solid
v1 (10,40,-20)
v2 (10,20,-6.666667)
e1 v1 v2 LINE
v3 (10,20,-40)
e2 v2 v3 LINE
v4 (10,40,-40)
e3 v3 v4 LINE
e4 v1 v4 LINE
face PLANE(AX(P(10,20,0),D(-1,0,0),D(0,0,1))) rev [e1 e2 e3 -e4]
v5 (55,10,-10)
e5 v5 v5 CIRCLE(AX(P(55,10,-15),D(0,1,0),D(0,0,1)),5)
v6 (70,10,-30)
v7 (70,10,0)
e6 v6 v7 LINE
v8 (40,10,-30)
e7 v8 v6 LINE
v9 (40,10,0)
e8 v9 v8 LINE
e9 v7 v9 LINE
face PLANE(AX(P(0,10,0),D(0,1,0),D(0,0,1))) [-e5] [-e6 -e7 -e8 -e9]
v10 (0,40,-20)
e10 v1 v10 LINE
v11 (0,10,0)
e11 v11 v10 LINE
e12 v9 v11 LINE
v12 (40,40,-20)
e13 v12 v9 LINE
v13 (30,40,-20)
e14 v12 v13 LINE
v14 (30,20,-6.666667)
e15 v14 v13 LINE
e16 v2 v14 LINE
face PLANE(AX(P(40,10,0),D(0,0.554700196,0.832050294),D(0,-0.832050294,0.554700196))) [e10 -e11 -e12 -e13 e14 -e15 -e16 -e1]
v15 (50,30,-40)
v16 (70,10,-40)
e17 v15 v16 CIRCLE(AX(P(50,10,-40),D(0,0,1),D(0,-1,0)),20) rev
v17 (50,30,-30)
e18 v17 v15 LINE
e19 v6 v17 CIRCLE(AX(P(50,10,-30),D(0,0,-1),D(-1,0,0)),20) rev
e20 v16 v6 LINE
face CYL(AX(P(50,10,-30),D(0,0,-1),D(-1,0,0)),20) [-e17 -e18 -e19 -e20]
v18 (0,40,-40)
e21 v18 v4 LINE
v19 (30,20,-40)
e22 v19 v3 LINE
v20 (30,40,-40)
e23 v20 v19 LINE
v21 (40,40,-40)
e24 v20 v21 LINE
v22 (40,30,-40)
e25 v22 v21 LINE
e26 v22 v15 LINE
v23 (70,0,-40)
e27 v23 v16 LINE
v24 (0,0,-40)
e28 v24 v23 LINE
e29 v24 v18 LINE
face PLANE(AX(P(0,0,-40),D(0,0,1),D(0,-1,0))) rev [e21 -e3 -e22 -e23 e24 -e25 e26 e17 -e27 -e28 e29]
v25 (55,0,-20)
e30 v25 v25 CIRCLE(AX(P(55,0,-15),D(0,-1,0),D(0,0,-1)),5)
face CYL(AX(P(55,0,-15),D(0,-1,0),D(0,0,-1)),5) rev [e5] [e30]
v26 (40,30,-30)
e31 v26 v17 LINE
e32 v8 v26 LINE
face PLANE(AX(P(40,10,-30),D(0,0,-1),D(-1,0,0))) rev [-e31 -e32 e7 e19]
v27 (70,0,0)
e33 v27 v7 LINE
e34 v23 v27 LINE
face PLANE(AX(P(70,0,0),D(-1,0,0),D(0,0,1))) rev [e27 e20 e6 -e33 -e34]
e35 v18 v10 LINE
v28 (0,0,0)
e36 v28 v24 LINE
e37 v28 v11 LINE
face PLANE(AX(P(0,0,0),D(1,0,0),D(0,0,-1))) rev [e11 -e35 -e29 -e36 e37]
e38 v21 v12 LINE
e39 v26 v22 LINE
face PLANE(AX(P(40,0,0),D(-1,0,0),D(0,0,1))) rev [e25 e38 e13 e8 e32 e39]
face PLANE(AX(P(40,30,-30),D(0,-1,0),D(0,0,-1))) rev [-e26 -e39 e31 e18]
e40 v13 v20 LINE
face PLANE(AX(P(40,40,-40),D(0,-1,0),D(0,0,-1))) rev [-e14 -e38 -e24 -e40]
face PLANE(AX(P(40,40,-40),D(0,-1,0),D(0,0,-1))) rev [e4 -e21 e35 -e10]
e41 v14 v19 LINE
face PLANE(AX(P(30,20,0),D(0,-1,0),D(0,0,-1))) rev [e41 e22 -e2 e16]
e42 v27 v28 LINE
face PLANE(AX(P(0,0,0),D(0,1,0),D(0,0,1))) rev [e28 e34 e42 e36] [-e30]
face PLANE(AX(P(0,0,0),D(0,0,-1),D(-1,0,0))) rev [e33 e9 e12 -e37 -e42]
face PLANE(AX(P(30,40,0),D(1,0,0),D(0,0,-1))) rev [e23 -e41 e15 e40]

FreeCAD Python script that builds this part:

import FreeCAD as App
import Part
import Sketcher
from FreeCAD import Vector


def edges_at(feature, points):
    """Names of the edges that pass closest to the given points."""
    edges = feature.Shape.Edges
    near = lambda p: min(range(len(edges)), key=lambda i: edges[i].distToShape(Part.Vertex(*p))[0])
    return sorted({f"Edge{near(p) + 1}" for p in points})

doc = App.newDocument("Part")
params = doc.addObject("Spreadsheet::Sheet", "Params")
for row, (alias, value) in enumerate([
    ("sketch1_width", "30 mm"),
    ("sketch1_height", "20 mm"),
    ("pad1_length", "40 mm"),
    ("sketch2_width", "40 mm"),
    ("sketch2_height", "30 mm"),
    ("pad2_length", "20 mm"),
    ("sketch3_width", "30 mm"),
    ("sketch3_height", "40 mm"),
    ("sketch3_height2", "20 mm"),
    ("pad3_length", "30 mm"),
    ("sketch4_width", "20 mm"),
    ("sketch4_width2", "10 mm"),
    ("sketch4_height", "30 mm"),
    ("pocket1_length", "30 mm"),
    ("sketch5_width", "70 mm"),
    ("sketch5_height", "40 mm"),
    ("pad4_length", "10 mm"),
    ("sketch6_width", "20 mm"),
    ("sketch7_diameter", "10 mm"),
    ("hole_diameter", "10 mm"),
    ("hole_depth", "40 mm"),
    ("fillet_radius", "20 mm"),
], start=1):
    params.set(f"A{row}", alias)
    params.set(f"B{row}", "=" + value)
    params.setAlias(f"B{row}", alias)

body = doc.addObject("PartDesign::Body", "Body")

# Sketch on YZ plane
sketch1 = body.newObject("Sketcher::SketchObject", "Sketch")
sketch1.AttachmentSupport = (doc.getObject("YZ_Plane"), [""])
sketch1.MapMode = "FlatFace"
sketch1.addGeometry(Part.LineSegment(Vector(10, 0, 0), Vector(40, -20, 0)), False)
sketch1.addGeometry(Part.LineSegment(Vector(40, -20, 0), Vector(10, -20, 0)), False)
sketch1.addGeometry(Part.LineSegment(Vector(10, -20, 0), Vector(10, 0, 0)), False)
sketch1.addConstraint(Sketcher.Constraint("Coincident", 0, 2, 1, 1))
sketch1.addConstraint(Sketcher.Constraint("Coincident", 1, 2, 2, 1))
sketch1.addConstraint(Sketcher.Constraint("Coincident", 2, 2, 0, 1))
sketch1.addConstraint(Sketcher.Constraint("Horizontal", 1))
sketch1.addConstraint(Sketcher.Constraint("Vertical", 2))
sketch1.addConstraint(Sketcher.Constraint("PointOnObject", 2, 2, -1))
sketch1.addConstraint(Sketcher.Constraint("DistanceX", 1, 2, 1, 1, 30.0))
sketch1.addConstraint(Sketcher.Constraint("DistanceY", 2, 1, 2, 2, 20.0))
sketch1.addConstraint(Sketcher.Constraint("DistanceX", -1, 1, 0, 2, 40.0))
sketch1.setExpression("Constraints[6]", "Params.sketch1_width")
sketch1.setExpression("Constraints[7]", "Params.sketch1_height")
pad1 = body.newObject("PartDesign::Pad", "Pad")
pad1.Profile = sketch1
pad1.setExpression("Length", "Params.pad1_length")

# Sketch on XY plane
sketch2 = body.newObject("Sketcher::SketchObject", "Sketch001")
sketch2.AttachmentSupport = (doc.getObject("XY_Plane"), [""])
sketch2.MapMode = "FlatFace"
sketch2.AttachmentOffset = App.Placement(Vector(0, 0, -20), App.Rotation())
sketch2.addGeometry(Part.LineSegment(Vector(40, 40, 0), Vector(40, 10, 0)), False)
sketch2.addGeometry(Part.LineSegment(Vector(40, 10, 0), Vector(0, 10, 0)), False)
sketch2.addGeometry(Part.LineSegment(Vector(0, 10, 0), Vector(0, 40, 0)), False)
sketch2.addGeometry(Part.LineSegment(Vector(0, 40, 0), Vector(40, 40, 0)), False)
sketch2.addConstraint(Sketcher.Constraint("Coincident", 0, 2, 1, 1))
sketch2.addConstraint(Sketcher.Constraint("Coincident", 1, 2, 2, 1))
sketch2.addConstraint(Sketcher.Constraint("Coincident", 2, 2, 3, 1))
sketch2.addConstraint(Sketcher.Constraint("Coincident", 3, 2, 0, 1))
sketch2.addConstraint(Sketcher.Constraint("Vertical", 0))
sketch2.addConstraint(Sketcher.Constraint("Horizontal", 1))
sketch2.addConstraint(Sketcher.Constraint("Vertical", 2))
sketch2.addConstraint(Sketcher.Constraint("Horizontal", 3))
sketch2.addConstraint(Sketcher.Constraint("PointOnObject", 1, 2, -2))
sketch2.addConstraint(Sketcher.Constraint("DistanceX", 1, 2, 1, 1, 40.0))
sketch2.addConstraint(Sketcher.Constraint("DistanceY", 0, 2, 0, 1, 30.0))
sketch2.addConstraint(Sketcher.Constraint("DistanceY", -1, 1, 0, 2, 10.0))
sketch2.setExpression("Constraints[9]", "Params.sketch2_width")
sketch2.setExpression("Constraints[10]", "Params.sketch2_height")
pad2 = body.newObject("PartDesign::Pad", "Pad001")
pad2.Profile = sketch2
pad2.setExpression("Length", "Params.pad2_length")
pad2.Reversed = True

# Sketch on YZ plane
sketch3 = body.newObject("Sketcher::SketchObject", "Sketch002")
sketch3.AttachmentSupport = (doc.getObject("YZ_Plane"), [""])
sketch3.MapMode = "FlatFace"
sketch3.AttachmentOffset = App.Placement(Vector(0, 0, 40), App.Rotation())
sketch3.addGeometry(Part.LineSegment(Vector(10, 0, 0), Vector(10, -40, 0)), False)
sketch3.addGeometry(Part.LineSegment(Vector(10, -40, 0), Vector(40, -40, 0)), False)
sketch3.addGeometry(Part.LineSegment(Vector(40, -40, 0), Vector(40, -20, 0)), False)
sketch3.addGeometry(Part.LineSegment(Vector(40, -20, 0), Vector(10, 0, 0)), False)
sketch3.addConstraint(Sketcher.Constraint("Coincident", 0, 2, 1, 1))
sketch3.addConstraint(Sketcher.Constraint("Coincident", 1, 2, 2, 1))
sketch3.addConstraint(Sketcher.Constraint("Coincident", 2, 2, 3, 1))
sketch3.addConstraint(Sketcher.Constraint("Coincident", 3, 2, 0, 1))
sketch3.addConstraint(Sketcher.Constraint("Vertical", 0))
sketch3.addConstraint(Sketcher.Constraint("Horizontal", 1))
sketch3.addConstraint(Sketcher.Constraint("Vertical", 2))
sketch3.addConstraint(Sketcher.Constraint("PointOnObject", 3, 2, -1))
sketch3.addConstraint(Sketcher.Constraint("DistanceX", 1, 1, 1, 2, 30.0))
sketch3.addConstraint(Sketcher.Constraint("DistanceY", 0, 2, 0, 1, 40.0))
sketch3.addConstraint(Sketcher.Constraint("DistanceY", 2, 1, 2, 2, 20.0))
sketch3.addConstraint(Sketcher.Constraint("DistanceX", -1, 1, 0, 2, 10.0))
sketch3.setExpression("Constraints[8]", "Params.sketch3_width")
sketch3.setExpression("Constraints[9]", "Params.sketch3_height")
sketch3.setExpression("Constraints[10]", "Params.sketch3_height2")
pad3 = body.newObject("PartDesign::Pad", "Pad002")
pad3.Profile = sketch3
pad3.setExpression("Length", "Params.pad3_length")

# Sketch on YZ plane
sketch4 = body.newObject("Sketcher::SketchObject", "Sketch003")
sketch4.AttachmentSupport = (doc.getObject("YZ_Plane"), [""])
sketch4.MapMode = "FlatFace"
sketch4.AttachmentOffset = App.Placement(Vector(0, 0, 70), App.Rotation())
sketch4.addGeometry(Part.LineSegment(Vector(40, -20, 0), Vector(10, 0, 0)), False)
sketch4.addGeometry(Part.LineSegment(Vector(10, 0, 0), Vector(10, -30, 0)), False)
sketch4.addGeometry(Part.LineSegment(Vector(10, -30, 0), Vector(30, -30, 0)), False)
sketch4.addGeometry(Part.LineSegment(Vector(30, -30, 0), Vector(30, -40, 0)), False)
sketch4.addGeometry(Part.LineSegment(Vector(30, -40, 0), Vector(40, -40, 0)), False)
sketch4.addGeometry(Part.LineSegment(Vector(40, -40, 0), Vector(40, -20, 0)), False)
sketch4.addConstraint(Sketcher.Constraint("Coincident", 0, 2, 1, 1))
sketch4.addConstraint(Sketcher.Constraint("Coincident", 1, 2, 2, 1))
sketch4.addConstraint(Sketcher.Constraint("Coincident", 2, 2, 3, 1))
sketch4.addConstraint(Sketcher.Constraint("Coincident", 3, 2, 4, 1))
sketch4.addConstraint(Sketcher.Constraint("Coincident", 4, 2, 5, 1))
sketch4.addConstraint(Sketcher.Constraint("Coincident", 5, 2, 0, 1))
sketch4.addConstraint(Sketcher.Constraint("Vertical", 1))
sketch4.addConstraint(Sketcher.Constraint("Horizontal", 2))
sketch4.addConstraint(Sketcher.Constraint("Vertical", 3))
sketch4.addConstraint(Sketcher.Constraint("Horizontal", 4))
sketch4.addConstraint(Sketcher.Constraint("Vertical", 5))
sketch4.addConstraint(Sketcher.Constraint("PointOnObject", 0, 2, -1))
sketch4.addConstraint(Sketcher.Constraint("Equal", 4, 3))
sketch4.addConstraint(Sketcher.Constraint("Equal", 2, 5))
sketch4.addConstraint(Sketcher.Constraint("DistanceX", 2, 1, 2, 2, 20.0))
sketch4.addConstraint(Sketcher.Constraint("DistanceX", 4, 1, 4, 2, 10.0))
sketch4.addConstraint(Sketcher.Constraint("DistanceY", 1, 2, 1, 1, 30.0))
sketch4.addConstraint(Sketcher.Constraint("DistanceX", -1, 1, 0, 2, 10.0))
sketch4.setExpression("Constraints[14]", "Params.sketch4_width")
sketch4.setExpression("Constraints[15]", "Params.sketch4_width2")
sketch4.setExpression("Constraints[16]", "Params.sketch4_height")
pocket1 = body.newObject("PartDesign::Pocket", "Pocket")
pocket1.Profile = sketch4
pocket1.setExpression("Length", "Params.pocket1_length")

# Sketch on XZ plane
sketch5 = body.newObject("Sketcher::SketchObject", "Sketch004")
sketch5.AttachmentSupport = (doc.getObject("XZ_Plane"), [""])
sketch5.MapMode = "FlatFace"
sketch5.AttachmentOffset = App.Placement(Vector(0, 0, -10), App.Rotation())
sketch5.addGeometry(Part.LineSegment(Vector(0, 0, 0), Vector(0, -40, 0)), False)
sketch5.addGeometry(Part.LineSegment(Vector(0, -40, 0), Vector(70, -40, 0)), False)
sketch5.addGeometry(Part.LineSegment(Vector(70, -40, 0), Vector(70, 0, 0)), False)
sketch5.addGeometry(Part.LineSegment(Vector(70, 0, 0), Vector(0, 0, 0)), False)
sketch5.addConstraint(Sketcher.Constraint("Coincident", 0, 2, 1, 1))
sketch5.addConstraint(Sketcher.Constraint("Coincident", 1, 2, 2, 1))
sketch5.addConstraint(Sketcher.Constraint("Coincident", 2, 2, 3, 1))
sketch5.addConstraint(Sketcher.Constraint("Coincident", 3, 2, 0, 1))
sketch5.addConstraint(Sketcher.Constraint("Vertical", 0))
sketch5.addConstraint(Sketcher.Constraint("Horizontal", 1))
sketch5.addConstraint(Sketcher.Constraint("Vertical", 2))
sketch5.addConstraint(Sketcher.Constraint("Horizontal", 3))
sketch5.addConstraint(Sketcher.Constraint("Coincident", 3, 2, -1, 1))
sketch5.addConstraint(Sketcher.Constraint("DistanceX", 1, 1, 1, 2, 70.0))
sketch5.addConstraint(Sketcher.Constraint("DistanceY", 0, 2, 0, 1, 40.0))
sketch5.setExpression("Constraints[9]", "Params.sketch5_width")
sketch5.setExpression("Constraints[10]", "Params.sketch5_height")
pad4 = body.newObject("PartDesign::Pad", "Pad003")
pad4.Profile = sketch5
pad4.setExpression("Length", "Params.pad4_length")

# Sketch on XY plane
sketch6 = body.newObject("Sketcher::SketchObject", "Sketch005")
sketch6.AttachmentSupport = (doc.getObject("XY_Plane"), [""])
sketch6.MapMode = "FlatFace"
sketch6.AttachmentOffset = App.Placement(Vector(0, 0, -40), App.Rotation())
sketch6.addGeometry(Part.LineSegment(Vector(30, 40, 0), Vector(30, 20, 0)), False)
sketch6.addGeometry(Part.LineSegment(Vector(30, 20, 0), Vector(10, 20, 0)), False)
sketch6.addGeometry(Part.LineSegment(Vector(10, 20, 0), Vector(10, 40, 0)), False)
sketch6.addGeometry(Part.LineSegment(Vector(10, 40, 0), Vector(30, 40, 0)), False)
sketch6.addConstraint(Sketcher.Constraint("Coincident", 0, 2, 1, 1))
sketch6.addConstraint(Sketcher.Constraint("Coincident", 1, 2, 2, 1))
sketch6.addConstraint(Sketcher.Constraint("Coincident", 2, 2, 3, 1))
sketch6.addConstraint(Sketcher.Constraint("Coincident", 3, 2, 0, 1))
sketch6.addConstraint(Sketcher.Constraint("Vertical", 0))
sketch6.addConstraint(Sketcher.Constraint("Horizontal", 1))
sketch6.addConstraint(Sketcher.Constraint("Vertical", 2))
sketch6.addConstraint(Sketcher.Constraint("Horizontal", 3))
sketch6.addConstraint(Sketcher.Constraint("Equal", 3, 0))
sketch6.addConstraint(Sketcher.Constraint("DistanceX", 1, 2, 1, 1, 20.0))
sketch6.addConstraint(Sketcher.Constraint("DistanceX", -1, 1, 0, 2, 30.0))
sketch6.addConstraint(Sketcher.Constraint("DistanceY", -1, 1, 0, 2, 20.0))
sketch6.setExpression("Constraints[9]", "Params.sketch6_width")
pocket2 = body.newObject("PartDesign::Pocket", "Pocket001")
pocket2.Profile = sketch6
pocket2.Type = "ThroughAll"
pocket2.Reversed = True

# Sketch on XZ plane
sketch7 = body.newObject("Sketcher::SketchObject", "Sketch006")
sketch7.AttachmentSupport = (doc.getObject("XZ_Plane"), [""])
sketch7.MapMode = "FlatFace"
sketch7.addGeometry(Part.Circle(Vector(55, -15, 0), Vector(0, 0, 1), 5), False)
sketch7.addConstraint(Sketcher.Constraint("Diameter", 0, 10.0))
sketch7.addConstraint(Sketcher.Constraint("DistanceX", -1, 1, 0, 3, 55.0))
sketch7.addConstraint(Sketcher.Constraint("DistanceY", 0, 3, -1, 1, 15.0))
sketch7.setExpression("Constraints[0]", "Params.sketch7_diameter")
doc.recompute()
hole = body.newObject("PartDesign::Hole", "Hole")
hole.Profile = sketch7
hole.ThreadType = "None"
hole.setExpression("Diameter", "Params.hole_diameter")
hole.DepthType = "Dimension"
hole.setExpression("Depth", "Params.hole_depth")
hole.DrillPoint = "Flat"
doc.recompute()

fillet = body.newObject("PartDesign::Fillet", "Fillet")
fillet.Base = (hole, edges_at(hole, [(70, 30, -35)]))
fillet.setExpression("Radius", "Params.fillet_radius")

doc.recompute()
